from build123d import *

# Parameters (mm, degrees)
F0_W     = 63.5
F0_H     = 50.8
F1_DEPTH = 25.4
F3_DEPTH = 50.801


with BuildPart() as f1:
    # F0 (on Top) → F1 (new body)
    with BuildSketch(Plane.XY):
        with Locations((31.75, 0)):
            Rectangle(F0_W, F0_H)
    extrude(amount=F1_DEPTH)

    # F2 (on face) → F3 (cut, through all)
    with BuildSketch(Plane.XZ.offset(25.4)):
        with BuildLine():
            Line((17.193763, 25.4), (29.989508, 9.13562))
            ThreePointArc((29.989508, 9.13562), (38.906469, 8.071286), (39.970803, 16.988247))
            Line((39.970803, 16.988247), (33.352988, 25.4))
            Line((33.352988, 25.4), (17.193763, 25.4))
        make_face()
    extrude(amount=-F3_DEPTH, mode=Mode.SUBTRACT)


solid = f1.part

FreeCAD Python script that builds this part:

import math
import FreeCAD as App
import Part
import Sketcher

V = App.Vector
Q = App.Units.Quantity

doc = App.newDocument("Part")
params = doc.addObject("Spreadsheet::Sheet", "Params")
for row, (alias, value) in enumerate([
    ("sketch1_height", "2 in"),
    ("sketch1_width", "2.5 in"),
    ("pad1_length", "1 in"),
    ("sketch2_radius", "0.25 in"),
], start=1):
    params.set(f"A{row}", alias)
    params.set(f"B{row}", "=" + value)
    params.setAlias(f"B{row}", alias)

body = doc.addObject("PartDesign::Body", "Body")

# Sketch on XY plane
sketch1 = body.newObject("Sketcher::SketchObject", "Sketch")
sketch1.AttachmentSupport = (doc.getObject("XY_Plane"), [""])
sketch1.MapMode = "FlatFace"
sketch1.addGeometry(Part.LineSegment(V(0, 25.4, 0), V(0, -25.4, 0)), False)
sketch1.addGeometry(Part.LineSegment(V(0, -25.4, 0), V(63.5, -25.4, 0)), False)
sketch1.addGeometry(Part.LineSegment(V(63.5, -25.4, 0), V(63.5, 25.4, 0)), False)
sketch1.addGeometry(Part.LineSegment(V(63.5, 25.4, 0), V(0, 25.4, 0)), False)
sketch1.addConstraint(Sketcher.Constraint("Coincident", 0, 2, 1, 1))
sketch1.addConstraint(Sketcher.Constraint("Coincident", 1, 2, 2, 1))
sketch1.addConstraint(Sketcher.Constraint("Coincident", 2, 2, 3, 1))
sketch1.addConstraint(Sketcher.Constraint("Coincident", 3, 2, 0, 1))
sketch1.addConstraint(Sketcher.Constraint("Vertical", 0))
sketch1.addConstraint(Sketcher.Constraint("Horizontal", 1))
sketch1.addConstraint(Sketcher.Constraint("Vertical", 2))
sketch1.addConstraint(Sketcher.Constraint("Horizontal", 3))
sketch1.addConstraint(Sketcher.Constraint("Symmetric", 0, 2, 3, 2, -1, 1))
sketch1.addConstraint(Sketcher.Constraint("DistanceY", 0, 2, 0, 1, Q("2 in")))
sketch1.addConstraint(Sketcher.Constraint("DistanceX", 1, 1, 1, 2, Q("2.5 in")))
sketch1.setExpression("Constraints[9]", "Params.sketch1_height")
sketch1.setExpression("Constraints[10]", "Params.sketch1_width")
pad1 = body.newObject("PartDesign::Pad", "Pad")
pad1.Profile = sketch1
pad1.setExpression("Length", "Params.pad1_length")

# Sketch on XZ plane
sketch2 = body.newObject("Sketcher::SketchObject", "Sketch001")
sketch2.AttachmentSupport = (doc.getObject("XZ_Plane"), [""])
sketch2.MapMode = "FlatFace"
sketch2.AttachmentOffset = App.Placement(V(0, 0, 1 * 25.4), App.Rotation())
sketch2.addGeometry(Part.LineSegment(V(17.193763, 25.4, 0), V(29.989508, 9.13562, 0)), False)
sketch2.addGeometry(Part.ArcOfCircle(Part.Circle(V(34.980156, 13.061934, 0), V(0, 0, 1), 6.35), math.radians(-141.806657), math.radians(38.193343)), False)
sketch2.addGeometry(Part.LineSegment(V(39.970803, 16.988247, 0), V(33.352988, 25.4, 0)), False)
sketch2.addGeometry(Part.LineSegment(V(33.352988, 25.4, 0), V(17.193763, 25.4, 0)), False)
sketch2.addConstraint(Sketcher.Constraint("Tangent", 0, 2, 1, 1))
sketch2.addConstraint(Sketcher.Constraint("Tangent", 1, 2, 2, 1))
sketch2.addConstraint(Sketcher.Constraint("Coincident", 2, 2, 3, 1))
sketch2.addConstraint(Sketcher.Constraint("Coincident", 3, 2, 0, 1))
sketch2.addConstraint(Sketcher.Constraint("Horizontal", 3))
sketch2.addConstraint(Sketcher.Constraint("Parallel", 0, 2))
sketch2.addConstraint(Sketcher.Constraint("Radius", 1, Q("0.25 in")))
sketch2.addConstraint(Sketcher.Constraint("DistanceY", -1, 1, 2, 2, Q("1 in")))
sketch2.addConstraint(Sketcher.Constraint("Distance", 0, 20.694471))
sketch2.addConstraint(Sketcher.Constraint("DistanceX", 3, 2, 3, 1, 16.159225))
sketch2.addConstraint(Sketcher.Constraint("DistanceX", -1, 1, 0, 2, 29.989508))
sketch2.setExpression("Constraints[6]", "Params.sketch2_radius")
pocket1 = body.newObject("PartDesign::Pocket", "Pocket")
pocket1.Profile = sketch2
pocket1.Type = "ThroughAll"

doc.recompute()
